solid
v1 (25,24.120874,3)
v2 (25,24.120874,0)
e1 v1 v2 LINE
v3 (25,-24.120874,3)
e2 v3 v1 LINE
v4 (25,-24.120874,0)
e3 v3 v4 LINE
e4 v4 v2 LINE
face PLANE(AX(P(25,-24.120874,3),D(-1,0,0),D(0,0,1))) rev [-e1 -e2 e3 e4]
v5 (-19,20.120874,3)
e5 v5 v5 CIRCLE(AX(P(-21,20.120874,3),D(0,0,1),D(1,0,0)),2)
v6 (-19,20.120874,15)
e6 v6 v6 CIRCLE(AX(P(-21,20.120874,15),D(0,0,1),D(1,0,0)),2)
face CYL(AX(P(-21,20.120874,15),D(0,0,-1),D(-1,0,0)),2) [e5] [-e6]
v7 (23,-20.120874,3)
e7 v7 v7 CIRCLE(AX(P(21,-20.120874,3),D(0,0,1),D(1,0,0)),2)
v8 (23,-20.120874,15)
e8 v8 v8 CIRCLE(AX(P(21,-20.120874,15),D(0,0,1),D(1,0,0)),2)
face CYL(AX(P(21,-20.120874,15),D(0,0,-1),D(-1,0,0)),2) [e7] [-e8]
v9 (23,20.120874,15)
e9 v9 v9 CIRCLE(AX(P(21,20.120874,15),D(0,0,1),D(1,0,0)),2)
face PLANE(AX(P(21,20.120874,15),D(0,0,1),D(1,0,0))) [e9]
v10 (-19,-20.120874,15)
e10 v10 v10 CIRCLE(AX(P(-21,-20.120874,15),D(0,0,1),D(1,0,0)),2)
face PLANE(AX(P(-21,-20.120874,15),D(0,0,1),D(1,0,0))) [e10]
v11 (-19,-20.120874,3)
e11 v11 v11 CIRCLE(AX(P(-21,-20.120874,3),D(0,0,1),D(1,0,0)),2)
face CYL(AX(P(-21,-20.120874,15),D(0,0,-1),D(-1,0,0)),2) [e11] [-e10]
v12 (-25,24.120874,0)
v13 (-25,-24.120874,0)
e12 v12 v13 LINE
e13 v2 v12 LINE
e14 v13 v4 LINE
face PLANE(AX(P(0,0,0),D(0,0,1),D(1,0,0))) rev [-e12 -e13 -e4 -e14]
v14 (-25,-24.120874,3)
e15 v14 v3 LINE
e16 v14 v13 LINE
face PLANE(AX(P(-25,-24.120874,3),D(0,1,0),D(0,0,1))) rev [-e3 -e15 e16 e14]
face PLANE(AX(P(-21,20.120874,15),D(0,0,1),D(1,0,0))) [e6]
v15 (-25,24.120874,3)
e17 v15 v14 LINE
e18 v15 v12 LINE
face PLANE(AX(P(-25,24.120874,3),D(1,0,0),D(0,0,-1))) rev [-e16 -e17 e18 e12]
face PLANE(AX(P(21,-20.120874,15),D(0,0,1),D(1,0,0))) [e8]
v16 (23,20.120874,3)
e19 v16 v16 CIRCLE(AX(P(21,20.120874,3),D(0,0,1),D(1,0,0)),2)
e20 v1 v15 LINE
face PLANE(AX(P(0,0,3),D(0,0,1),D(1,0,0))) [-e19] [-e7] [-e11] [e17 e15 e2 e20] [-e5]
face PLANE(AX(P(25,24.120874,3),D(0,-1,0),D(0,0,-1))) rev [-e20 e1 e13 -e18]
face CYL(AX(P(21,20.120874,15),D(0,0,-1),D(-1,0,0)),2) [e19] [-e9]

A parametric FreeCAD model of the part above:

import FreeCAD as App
import Part
import Sketcher

V = App.Vector
Q = App.Units.Quantity


def add_polygon(sketch, points):
    """Adds a closed chain of lines whose ends are joined by coincident constraints."""
    first, n = sketch.GeometryCount, len(points)
    for a, b in zip(points, points[1:] + points[:1]):
        sketch.addGeometry(Part.LineSegment(App.Vector(*a, 0), App.Vector(*b, 0)), False)
    for i in range(n):
        sketch.addConstraint(Sketcher.Constraint("Coincident", first + i, 2, first + (i + 1) % n, 1))

doc = App.newDocument("Part")
body = doc.addObject("PartDesign::Body", "Body")

# Sketch on XY plane
sketch1 = body.newObject("Sketcher::SketchObject", "Sketch")
sketch1.AttachmentSupport = (doc.getObject("XY_Plane"), [""])
sketch1.MapMode = "FlatFace"
add_polygon(sketch1, [(-25, 24.120874), (-25, -24.120874), (25, -24.120874), (25, 24.120874)])  # lines 0-3
sketch1.addConstraint([
    Sketcher.Constraint("Vertical", 0),
    Sketcher.Constraint("Horizontal", 1),
    Sketcher.Constraint("Vertical", 2),
    Sketcher.Constraint("Horizontal", 3),
    Sketcher.Constraint("Symmetric", 0, 2, 2, 2, -1, 1),
    Sketcher.Constraint("DistanceX", 1, 1, 1, 2, Q("50 mm")),
    Sketcher.Constraint("DistanceY", 0, 2, 0, 1, Q("48.241748 mm")),
])
pad1 = body.newObject("PartDesign::Pad", "Pad")
pad1.Profile = sketch1
pad1.Length = 3

# Sketch on XY plane
sketch2 = body.newObject("Sketcher::SketchObject", "Sketch001")
sketch2.AttachmentSupport = (doc.getObject("XY_Plane"), [""])
sketch2.MapMode = "FlatFace"
sketch2.AttachmentOffset = App.Placement(V(0, 0, 3), App.Rotation())
sketch2.addGeometry([
    Part.Circle(V(-21, -20.120874, 0), V(0, 0, 1), 2),
    Part.Circle(V(-21, 20.120874, 0), V(0, 0, 1), 2),
    Part.Circle(V(21, -20.120874, 0), V(0, 0, 1), 2),
    Part.Circle(V(21, 20.120874, 0), V(0, 0, 1), 2),
], False)
sketch2.addConstraint([
    Sketcher.Constraint("Equal", 0, 1),
    Sketcher.Constraint("Equal", 1, 2),
    Sketcher.Constraint("Equal", 2, 3),
    Sketcher.Constraint("Symmetric", 1, 3, 2, 3, -1, 1),
    Sketcher.Constraint("Symmetric", 0, 3, 3, 3, -1, 1),
    Sketcher.Constraint("Symmetric", 0, 3, 2, 3, -2),
    Sketcher.Constraint("Diameter", 0, Q("4 mm")),
    Sketcher.Constraint("DistanceX", 0, 3, -1, 1, Q("21 mm")),
    Sketcher.Constraint("DistanceY", 0, 3, 1, 3, Q("40.241748 mm")),
])
pad2 = body.newObject("PartDesign::Pad", "Pad001")
pad2.Profile = sketch2
pad2.Length = 12

doc.recompute()
